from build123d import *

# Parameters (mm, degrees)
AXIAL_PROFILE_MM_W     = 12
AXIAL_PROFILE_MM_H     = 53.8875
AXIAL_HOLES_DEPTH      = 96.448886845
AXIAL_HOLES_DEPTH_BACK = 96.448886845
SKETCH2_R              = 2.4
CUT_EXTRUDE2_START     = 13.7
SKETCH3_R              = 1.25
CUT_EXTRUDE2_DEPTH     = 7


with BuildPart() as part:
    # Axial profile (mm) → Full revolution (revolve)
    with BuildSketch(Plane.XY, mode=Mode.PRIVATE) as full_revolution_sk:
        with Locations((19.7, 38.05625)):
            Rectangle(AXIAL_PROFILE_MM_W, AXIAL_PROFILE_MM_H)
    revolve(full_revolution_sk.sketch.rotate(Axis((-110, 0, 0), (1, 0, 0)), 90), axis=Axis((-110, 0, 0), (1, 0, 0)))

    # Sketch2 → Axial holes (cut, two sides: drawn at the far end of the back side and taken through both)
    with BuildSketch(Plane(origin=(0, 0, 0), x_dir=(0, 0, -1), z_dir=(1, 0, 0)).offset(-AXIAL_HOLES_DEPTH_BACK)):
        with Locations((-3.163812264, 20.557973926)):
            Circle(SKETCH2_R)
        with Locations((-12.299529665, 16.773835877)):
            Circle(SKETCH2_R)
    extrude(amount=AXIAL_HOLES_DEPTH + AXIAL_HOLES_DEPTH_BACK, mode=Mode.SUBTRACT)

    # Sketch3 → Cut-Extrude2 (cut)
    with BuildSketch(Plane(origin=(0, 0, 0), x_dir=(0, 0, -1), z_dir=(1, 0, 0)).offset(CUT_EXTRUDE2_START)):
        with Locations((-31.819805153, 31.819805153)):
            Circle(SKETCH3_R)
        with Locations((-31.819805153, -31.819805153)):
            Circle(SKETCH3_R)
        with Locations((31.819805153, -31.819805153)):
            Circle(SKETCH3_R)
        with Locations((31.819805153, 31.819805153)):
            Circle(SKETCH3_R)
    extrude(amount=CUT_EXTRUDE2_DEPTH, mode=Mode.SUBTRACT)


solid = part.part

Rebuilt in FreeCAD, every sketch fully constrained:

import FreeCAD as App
import Part
import Sketcher


def add_polygon(sketch, points):
    """Adds a closed chain of lines whose ends are joined by coincident constraints."""
    first, n = sketch.GeometryCount, len(points)
    for a, b in zip(points, points[1:] + points[:1]):
        sketch.addGeometry(Part.LineSegment(App.Vector(*a, 0), App.Vector(*b, 0)), False)
    for i in range(n):
        sketch.addConstraint(Sketcher.Constraint("Coincident", first + i, 2, first + (i + 1) % n, 1))

doc = App.newDocument("Part")
body = doc.addObject("PartDesign::Body", "Body")

# Sketch on XY plane
sketch1 = body.newObject("Sketcher::SketchObject", "Sketch")
sketch1.AttachmentSupport = (doc.getObject("XY_Plane"), [""])
sketch1.MapMode = "FlatFace"
add_polygon(sketch1, [(14, 65), (14, 11), (26, 11), (26, 65)])  # lines 0-3
sketch1.addConstraint([
    Sketcher.Constraint("Vertical", 0),
    Sketcher.Constraint("Horizontal", 1),
    Sketcher.Constraint("Vertical", 2),
    Sketcher.Constraint("Horizontal", 3),
    Sketcher.Constraint("DistanceX", 1, 1, 1, 2, 12.0),
    Sketcher.Constraint("DistanceY", -1, 1, 2, 2, 65.0),
    Sketcher.Constraint("DistanceX", -1, 1, 0, 2, 13.7),
    Sketcher.Constraint("DistanceY", 0, 2, 0, 1, 53.8875),
])
revolution = body.newObject("PartDesign::Revolution", "Revolution")
revolution.Profile = sketch1
revolution.ReferenceAxis = (sketch1, ["H_Axis"])
revolution.Angle = 360

# Sketch on YZ plane
sketch2 = body.newObject("Sketcher::SketchObject", "Sketch001")
sketch2.AttachmentSupport = (doc.getObject("YZ_Plane"), [""])
sketch2.MapMode = "FlatFace"
sketch2.addGeometry([
    Part.Circle(App.Vector(20.6, 3.2, 0), App.Vector(0, 0, 1), 2.4),
    Part.Circle(App.Vector(16.8, 12.3, 0), App.Vector(0, 0, 1), 2.4),
], False)
sketch2.addConstraint([
    Sketcher.Constraint("Equal", 0, 1),
    Sketcher.Constraint("Diameter", 0, 4.8),
    Sketcher.Constraint("DistanceY", -1, 1, 1, 3, 12.29953),
    Sketcher.Constraint("DistanceX", 1, 3, 0, 3, 3.784138),
    Sketcher.Constraint("DistanceX", -1, 1, 0, 3, 20.557974),
    Sketcher.Constraint("DistanceY", -1, 1, 0, 3, 3.163812),
])
pocket1 = body.newObject("PartDesign::Pocket", "Pocket")
pocket1.Profile = sketch2
pocket1.Type = "ThroughAll"
pocket1.Midplane = True

# Sketch on YZ plane
sketch3 = body.newObject("Sketcher::SketchObject", "Sketch002")
sketch3.AttachmentSupport = (doc.getObject("YZ_Plane"), [""])
sketch3.MapMode = "FlatFace"
sketch3.AttachmentOffset = App.Placement(App.Vector(0, 0, 13.7), App.Rotation())
sketch3.addGeometry([
    Part.Circle(App.Vector(31.8, 31.8, 0), App.Vector(0, 0, 1), 1.2),
    Part.Circle(App.Vector(-31.8, 31.8, 0), App.Vector(0, 0, 1), 1.2),
    Part.Circle(App.Vector(-31.8, -31.8, 0), App.Vector(0, 0, 1), 1.2),
    Part.Circle(App.Vector(31.8, -31.8, 0), App.Vector(0, 0, 1), 1.2),
], False)
sketch3.addConstraint([
    Sketcher.Constraint("Equal", 0, 1),
    Sketcher.Constraint("Equal", 1, 2),
    Sketcher.Constraint("Equal", 2, 3),
    Sketcher.Constraint("Symmetric", 0, 3, 2, 3, -1, 1),
    Sketcher.Constraint("Symmetric", 1, 3, 3, 3, -1, 1),
    Sketcher.Constraint("Symmetric", 0, 3, 1, 3, -2),
    Sketcher.Constraint("Diameter", 0, 2.5),
    Sketcher.Constraint("DistanceX", 1, 3, 0, 3, 63.63961),
    Sketcher.Constraint("DistanceY", 2, 3, 1, 3, 63.63961),
])
pocket2 = body.newObject("PartDesign::Pocket", "Pocket001")
pocket2.Profile = sketch3
pocket2.Length = 7
pocket2.Reversed = True

doc.recompute()
